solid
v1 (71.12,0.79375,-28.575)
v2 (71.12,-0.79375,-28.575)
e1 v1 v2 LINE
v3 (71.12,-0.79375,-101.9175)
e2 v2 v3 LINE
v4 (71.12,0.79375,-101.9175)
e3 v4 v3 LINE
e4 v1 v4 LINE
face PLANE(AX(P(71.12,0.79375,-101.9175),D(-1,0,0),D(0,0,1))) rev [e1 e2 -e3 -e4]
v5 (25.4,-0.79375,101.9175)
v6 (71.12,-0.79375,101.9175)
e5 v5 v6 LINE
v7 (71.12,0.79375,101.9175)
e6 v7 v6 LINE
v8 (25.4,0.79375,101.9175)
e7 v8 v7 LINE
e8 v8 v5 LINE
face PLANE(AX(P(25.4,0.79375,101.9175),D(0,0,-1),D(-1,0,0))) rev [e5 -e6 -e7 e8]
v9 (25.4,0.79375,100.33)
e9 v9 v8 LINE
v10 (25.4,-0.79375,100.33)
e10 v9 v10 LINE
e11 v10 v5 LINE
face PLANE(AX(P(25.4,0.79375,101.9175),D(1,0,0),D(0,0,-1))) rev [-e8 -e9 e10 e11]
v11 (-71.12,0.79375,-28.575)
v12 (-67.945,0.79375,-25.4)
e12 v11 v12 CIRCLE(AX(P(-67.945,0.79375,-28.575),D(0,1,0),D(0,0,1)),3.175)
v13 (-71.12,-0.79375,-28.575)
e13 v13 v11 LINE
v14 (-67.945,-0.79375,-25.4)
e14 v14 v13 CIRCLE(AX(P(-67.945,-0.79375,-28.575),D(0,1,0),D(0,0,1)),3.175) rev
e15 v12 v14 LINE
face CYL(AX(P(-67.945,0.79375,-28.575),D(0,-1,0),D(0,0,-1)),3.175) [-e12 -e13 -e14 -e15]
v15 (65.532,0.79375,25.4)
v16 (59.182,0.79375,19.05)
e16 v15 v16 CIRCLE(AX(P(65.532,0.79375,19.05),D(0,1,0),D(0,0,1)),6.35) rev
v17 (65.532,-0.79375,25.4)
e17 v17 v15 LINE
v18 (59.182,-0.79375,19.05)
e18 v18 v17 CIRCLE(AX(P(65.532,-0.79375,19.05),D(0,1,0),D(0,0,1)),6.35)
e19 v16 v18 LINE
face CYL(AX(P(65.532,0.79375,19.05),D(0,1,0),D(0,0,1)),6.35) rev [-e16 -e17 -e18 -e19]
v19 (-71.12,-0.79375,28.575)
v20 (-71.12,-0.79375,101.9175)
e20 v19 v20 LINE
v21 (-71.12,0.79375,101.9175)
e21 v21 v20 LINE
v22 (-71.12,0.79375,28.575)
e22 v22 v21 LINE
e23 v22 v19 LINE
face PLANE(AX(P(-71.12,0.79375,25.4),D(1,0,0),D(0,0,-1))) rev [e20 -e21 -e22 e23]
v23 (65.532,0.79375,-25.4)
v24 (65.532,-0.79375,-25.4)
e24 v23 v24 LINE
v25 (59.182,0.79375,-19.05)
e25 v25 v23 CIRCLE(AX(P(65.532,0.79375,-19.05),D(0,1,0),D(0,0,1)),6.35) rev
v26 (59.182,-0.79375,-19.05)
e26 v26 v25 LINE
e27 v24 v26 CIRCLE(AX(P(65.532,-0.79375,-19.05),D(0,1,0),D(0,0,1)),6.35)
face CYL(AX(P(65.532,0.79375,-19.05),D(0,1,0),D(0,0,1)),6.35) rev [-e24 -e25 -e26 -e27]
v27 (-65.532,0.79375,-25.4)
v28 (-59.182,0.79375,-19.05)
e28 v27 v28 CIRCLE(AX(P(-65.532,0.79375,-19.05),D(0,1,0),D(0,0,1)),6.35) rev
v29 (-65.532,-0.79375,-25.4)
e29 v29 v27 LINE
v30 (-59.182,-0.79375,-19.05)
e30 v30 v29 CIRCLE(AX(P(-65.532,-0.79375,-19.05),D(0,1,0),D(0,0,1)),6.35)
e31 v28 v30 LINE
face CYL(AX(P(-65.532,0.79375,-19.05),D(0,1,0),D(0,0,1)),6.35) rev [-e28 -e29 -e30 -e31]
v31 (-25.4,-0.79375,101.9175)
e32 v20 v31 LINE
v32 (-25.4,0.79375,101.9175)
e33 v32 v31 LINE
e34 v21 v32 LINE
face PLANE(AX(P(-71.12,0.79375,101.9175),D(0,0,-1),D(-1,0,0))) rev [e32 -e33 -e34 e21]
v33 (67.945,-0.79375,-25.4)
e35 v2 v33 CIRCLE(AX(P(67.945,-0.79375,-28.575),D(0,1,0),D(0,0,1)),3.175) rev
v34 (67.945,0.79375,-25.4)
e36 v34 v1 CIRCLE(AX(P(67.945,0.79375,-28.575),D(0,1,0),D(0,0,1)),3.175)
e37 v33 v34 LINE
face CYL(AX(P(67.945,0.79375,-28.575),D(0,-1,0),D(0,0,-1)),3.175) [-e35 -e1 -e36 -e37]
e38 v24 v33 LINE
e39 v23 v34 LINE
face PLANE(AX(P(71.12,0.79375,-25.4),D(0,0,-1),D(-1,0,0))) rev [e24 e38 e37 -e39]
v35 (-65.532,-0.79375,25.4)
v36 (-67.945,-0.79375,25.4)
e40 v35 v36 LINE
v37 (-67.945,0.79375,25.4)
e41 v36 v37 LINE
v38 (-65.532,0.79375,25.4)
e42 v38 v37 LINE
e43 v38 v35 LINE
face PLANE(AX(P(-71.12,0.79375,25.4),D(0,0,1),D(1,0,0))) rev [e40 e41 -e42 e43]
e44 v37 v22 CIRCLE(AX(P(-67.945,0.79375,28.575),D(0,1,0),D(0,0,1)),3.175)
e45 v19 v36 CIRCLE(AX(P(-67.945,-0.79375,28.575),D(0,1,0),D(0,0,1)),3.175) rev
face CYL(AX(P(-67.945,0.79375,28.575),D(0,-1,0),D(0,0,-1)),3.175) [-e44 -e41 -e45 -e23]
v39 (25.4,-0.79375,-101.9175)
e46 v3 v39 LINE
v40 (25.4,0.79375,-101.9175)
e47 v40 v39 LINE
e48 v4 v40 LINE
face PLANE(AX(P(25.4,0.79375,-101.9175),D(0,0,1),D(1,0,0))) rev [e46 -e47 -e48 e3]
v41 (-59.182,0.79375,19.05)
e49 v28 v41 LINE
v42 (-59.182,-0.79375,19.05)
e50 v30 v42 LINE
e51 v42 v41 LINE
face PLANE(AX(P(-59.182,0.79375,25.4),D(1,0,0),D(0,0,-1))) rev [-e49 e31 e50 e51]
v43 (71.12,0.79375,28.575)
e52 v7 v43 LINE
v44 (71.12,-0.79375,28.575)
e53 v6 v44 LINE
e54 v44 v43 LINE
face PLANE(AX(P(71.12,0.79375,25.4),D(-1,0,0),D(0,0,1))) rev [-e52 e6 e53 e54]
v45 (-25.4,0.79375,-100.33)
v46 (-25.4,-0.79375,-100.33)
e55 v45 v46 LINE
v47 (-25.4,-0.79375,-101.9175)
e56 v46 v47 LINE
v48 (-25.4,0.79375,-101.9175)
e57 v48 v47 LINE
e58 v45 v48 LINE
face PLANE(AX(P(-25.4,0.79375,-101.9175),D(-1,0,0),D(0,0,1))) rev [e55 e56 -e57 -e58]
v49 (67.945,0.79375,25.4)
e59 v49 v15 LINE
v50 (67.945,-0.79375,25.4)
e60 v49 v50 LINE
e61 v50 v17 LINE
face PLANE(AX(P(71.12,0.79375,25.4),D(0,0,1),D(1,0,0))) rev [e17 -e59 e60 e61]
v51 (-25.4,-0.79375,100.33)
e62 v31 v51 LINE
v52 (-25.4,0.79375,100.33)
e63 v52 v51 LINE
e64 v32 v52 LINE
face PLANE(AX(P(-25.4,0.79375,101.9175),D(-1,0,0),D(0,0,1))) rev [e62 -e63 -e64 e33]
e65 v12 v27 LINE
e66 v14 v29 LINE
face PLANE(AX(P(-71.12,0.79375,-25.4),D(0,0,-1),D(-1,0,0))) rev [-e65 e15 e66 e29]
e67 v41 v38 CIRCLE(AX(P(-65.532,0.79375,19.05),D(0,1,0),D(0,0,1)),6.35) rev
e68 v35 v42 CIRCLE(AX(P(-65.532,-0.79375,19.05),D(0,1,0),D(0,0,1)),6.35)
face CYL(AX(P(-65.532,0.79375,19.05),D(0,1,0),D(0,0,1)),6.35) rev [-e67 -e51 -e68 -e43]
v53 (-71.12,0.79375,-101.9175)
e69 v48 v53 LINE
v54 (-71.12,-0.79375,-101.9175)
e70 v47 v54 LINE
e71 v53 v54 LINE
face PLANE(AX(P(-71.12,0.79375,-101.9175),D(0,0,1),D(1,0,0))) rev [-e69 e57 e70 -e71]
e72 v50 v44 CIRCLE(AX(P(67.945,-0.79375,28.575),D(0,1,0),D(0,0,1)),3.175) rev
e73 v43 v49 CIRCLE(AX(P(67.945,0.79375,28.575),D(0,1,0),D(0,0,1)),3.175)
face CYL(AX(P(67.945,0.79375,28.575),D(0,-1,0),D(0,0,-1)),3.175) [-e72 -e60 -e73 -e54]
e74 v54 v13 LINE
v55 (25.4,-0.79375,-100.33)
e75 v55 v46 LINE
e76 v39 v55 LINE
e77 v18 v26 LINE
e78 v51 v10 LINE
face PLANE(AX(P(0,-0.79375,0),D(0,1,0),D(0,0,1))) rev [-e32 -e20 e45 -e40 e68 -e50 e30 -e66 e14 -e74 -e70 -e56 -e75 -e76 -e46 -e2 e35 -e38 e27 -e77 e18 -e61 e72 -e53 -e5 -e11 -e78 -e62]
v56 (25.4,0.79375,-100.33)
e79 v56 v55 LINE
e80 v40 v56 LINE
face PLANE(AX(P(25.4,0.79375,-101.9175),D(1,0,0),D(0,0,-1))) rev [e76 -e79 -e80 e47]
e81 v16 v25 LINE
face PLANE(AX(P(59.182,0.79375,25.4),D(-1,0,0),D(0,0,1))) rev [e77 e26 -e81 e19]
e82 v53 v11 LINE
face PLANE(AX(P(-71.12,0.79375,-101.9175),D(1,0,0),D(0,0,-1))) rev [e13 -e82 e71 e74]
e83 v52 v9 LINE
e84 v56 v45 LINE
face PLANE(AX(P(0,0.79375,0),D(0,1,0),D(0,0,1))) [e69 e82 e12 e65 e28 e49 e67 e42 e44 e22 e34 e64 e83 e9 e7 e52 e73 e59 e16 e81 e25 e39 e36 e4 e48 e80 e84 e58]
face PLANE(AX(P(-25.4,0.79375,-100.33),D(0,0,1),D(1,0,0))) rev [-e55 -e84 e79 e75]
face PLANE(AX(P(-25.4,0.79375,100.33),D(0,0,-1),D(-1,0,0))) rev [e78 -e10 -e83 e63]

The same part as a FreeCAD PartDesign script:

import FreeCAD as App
import Part
import Sketcher
Q = App.Units.Quantity


def edges_at(feature, points):
    """Names of the edges that pass closest to the given points."""
    edges = feature.Shape.Edges
    near = lambda p: min(range(len(edges)), key=lambda i: edges[i].distToShape(Part.Vertex(*p))[0])
    return sorted({f"Edge{near(p) + 1}" for p in points})

doc = App.newDocument("Part")
body = doc.addObject("PartDesign::Body", "Body")

sketch1 = doc.addObject("Sketcher::SketchObject", "Sketch")
body.addObject(sketch1)
sketch1.AttachmentSupport = (doc.XZ_Plane, [""])
sketch1.MapMode = "FlatFace"
sketch1.addGeometry(Part.LineSegment(App.Vector(-25.4, -101.9175, 0), App.Vector(-71.12, -101.9175, 0)), False)
sketch1.addGeometry(Part.LineSegment(App.Vector(-71.12, -101.9175, 0), App.Vector(-71.12, -25.4, 0)), False)
sketch1.addGeometry(Part.LineSegment(App.Vector(-71.12, -25.4, 0), App.Vector(-59.182, -25.4, 0)), False)
sketch1.addGeometry(Part.LineSegment(App.Vector(-59.182, -25.4, 0), App.Vector(-59.182, 25.4, 0)), False)
sketch1.addGeometry(Part.LineSegment(App.Vector(-59.182, 25.4, 0), App.Vector(-71.12, 25.4, 0)), False)
sketch1.addGeometry(Part.LineSegment(App.Vector(-71.12, 25.4, 0), App.Vector(-71.12, 101.9175, 0)), False)
sketch1.addGeometry(Part.LineSegment(App.Vector(-71.12, 101.9175, 0), App.Vector(-25.4, 101.9175, 0)), False)
sketch1.addGeometry(Part.LineSegment(App.Vector(-25.4, 101.9175, 0), App.Vector(-25.4, 100.33, 0)), False)
sketch1.addGeometry(Part.LineSegment(App.Vector(-25.4, 100.33, 0), App.Vector(25.4, 100.33, 0)), False)
sketch1.addGeometry(Part.LineSegment(App.Vector(25.4, 100.33, 0), App.Vector(25.4, 101.9175, 0)), False)
sketch1.addGeometry(Part.LineSegment(App.Vector(25.4, 101.9175, 0), App.Vector(71.12, 101.9175, 0)), False)
sketch1.addGeometry(Part.LineSegment(App.Vector(71.12, 101.9175, 0), App.Vector(71.12, 25.4, 0)), False)
sketch1.addGeometry(Part.LineSegment(App.Vector(71.12, 25.4, 0), App.Vector(59.182, 25.4, 0)), False)
sketch1.addGeometry(Part.LineSegment(App.Vector(59.182, 25.4, 0), App.Vector(59.182, -25.4, 0)), False)
sketch1.addGeometry(Part.LineSegment(App.Vector(59.182, -25.4, 0), App.Vector(71.12, -25.4, 0)), False)
sketch1.addGeometry(Part.LineSegment(App.Vector(71.12, -25.4, 0), App.Vector(71.12, -101.9175, 0)), False)
sketch1.addGeometry(Part.LineSegment(App.Vector(71.12, -101.9175, 0), App.Vector(25.4, -101.9175, 0)), False)
sketch1.addGeometry(Part.LineSegment(App.Vector(25.4, -101.9175, 0), App.Vector(25.4, -100.33, 0)), False)
sketch1.addGeometry(Part.LineSegment(App.Vector(25.4, -100.33, 0), App.Vector(-25.4, -100.33, 0)), False)
sketch1.addGeometry(Part.LineSegment(App.Vector(-25.4, -100.33, 0), App.Vector(-25.4, -101.9175, 0)), False)
sketch1.addConstraint(Sketcher.Constraint("Coincident", 0, 2, 1, 1))
sketch1.addConstraint(Sketcher.Constraint("Coincident", 1, 2, 2, 1))
sketch1.addConstraint(Sketcher.Constraint("Coincident", 2, 2, 3, 1))
sketch1.addConstraint(Sketcher.Constraint("Coincident", 3, 2, 4, 1))
sketch1.addConstraint(Sketcher.Constraint("Coincident", 4, 2, 5, 1))
sketch1.addConstraint(Sketcher.Constraint("Coincident", 5, 2, 6, 1))
sketch1.addConstraint(Sketcher.Constraint("Coincident", 6, 2, 7, 1))
sketch1.addConstraint(Sketcher.Constraint("Coincident", 7, 2, 8, 1))
sketch1.addConstraint(Sketcher.Constraint("Coincident", 8, 2, 9, 1))
sketch1.addConstraint(Sketcher.Constraint("Coincident", 9, 2, 10, 1))
sketch1.addConstraint(Sketcher.Constraint("Coincident", 10, 2, 11, 1))
sketch1.addConstraint(Sketcher.Constraint("Coincident", 11, 2, 12, 1))
sketch1.addConstraint(Sketcher.Constraint("Coincident", 12, 2, 13, 1))
sketch1.addConstraint(Sketcher.Constraint("Coincident", 13, 2, 14, 1))
sketch1.addConstraint(Sketcher.Constraint("Coincident", 14, 2, 15, 1))
sketch1.addConstraint(Sketcher.Constraint("Coincident", 15, 2, 16, 1))
sketch1.addConstraint(Sketcher.Constraint("Coincident", 16, 2, 17, 1))
sketch1.addConstraint(Sketcher.Constraint("Coincident", 17, 2, 18, 1))
sketch1.addConstraint(Sketcher.Constraint("Coincident", 18, 2, 19, 1))
sketch1.addConstraint(Sketcher.Constraint("Coincident", 19, 2, 0, 1))
sketch1.addConstraint(Sketcher.Constraint("Horizontal", 0))
sketch1.addConstraint(Sketcher.Constraint("Vertical", 1))
sketch1.addConstraint(Sketcher.Constraint("Horizontal", 2))
sketch1.addConstraint(Sketcher.Constraint("Vertical", 3))
sketch1.addConstraint(Sketcher.Constraint("Horizontal", 4))
sketch1.addConstraint(Sketcher.Constraint("Vertical", 5))
sketch1.addConstraint(Sketcher.Constraint("Horizontal", 6))
sketch1.addConstraint(Sketcher.Constraint("Vertical", 7))
sketch1.addConstraint(Sketcher.Constraint("Horizontal", 8))
sketch1.addConstraint(Sketcher.Constraint("Vertical", 9))
sketch1.addConstraint(Sketcher.Constraint("Horizontal", 10))
sketch1.addConstraint(Sketcher.Constraint("Vertical", 11))
sketch1.addConstraint(Sketcher.Constraint("Horizontal", 12))
sketch1.addConstraint(Sketcher.Constraint("Vertical", 13))
sketch1.addConstraint(Sketcher.Constraint("Horizontal", 14))
sketch1.addConstraint(Sketcher.Constraint("Vertical", 15))
sketch1.addConstraint(Sketcher.Constraint("Horizontal", 16))
sketch1.addConstraint(Sketcher.Constraint("Vertical", 17))
sketch1.addConstraint(Sketcher.Constraint("Horizontal", 18))
sketch1.addConstraint(Sketcher.Constraint("Vertical", 19))
sketch1.addConstraint(Sketcher.Constraint("Symmetric", 0, 2, 10, 2, -1, 1))
sketch1.addConstraint(Sketcher.Constraint("Symmetric", 2, 2, 12, 2, -1, 1))
sketch1.addConstraint(Sketcher.Constraint("Symmetric", 4, 2, 14, 2, -1, 1))
sketch1.addConstraint(Sketcher.Constraint("Symmetric", 6, 2, 16, 2, -1, 1))
sketch1.addConstraint(Sketcher.Constraint("Symmetric", 8, 2, 18, 2, -1, 1))
sketch1.addConstraint(Sketcher.Constraint("Symmetric", 6, 2, 9, 2, -2))
sketch1.addConstraint(Sketcher.Constraint("Symmetric", 4, 2, 11, 2, -2))
sketch1.addConstraint(Sketcher.Constraint("Equal", 18, 3))
sketch1.addConstraint(Sketcher.Constraint("DistanceX", 8, 1, 8, 2, Q("2 in")))
sketch1.addConstraint(Sketcher.Constraint("DistanceX", 0, 2, 0, 1, Q("1.8 in")))
sketch1.addConstraint(Sketcher.Constraint("DistanceX", 2, 1, 2, 2, Q("0.47 in")))
sketch1.addConstraint(Sketcher.Constraint("DistanceY", 7, 2, 7, 1, Q("0.0625 in")))
sketch1.addConstraint(Sketcher.Constraint("DistanceY", -1, 1, 7, 2, Q("3.95 in")))
pad1 = doc.addObject("PartDesign::Pad", "Pad")
body.addObject(pad1)
pad1.Profile = sketch1
pad1.Length = Q("0.0625 in")
pad1.Midplane = True
doc.recompute()

fillet = doc.addObject("PartDesign::Fillet", "Fillet")
body.addObject(fillet)
fillet.Base = (pad1, edges_at(pad1, [
    (59.182, 0, -25.4),
    (59.182, 0, 25.4),
    (-59.182, 0, 25.4),
    (-59.182, 0, -25.4),
]))
fillet.Radius = Q("0.25 in")
doc.recompute()

fillet2 = doc.addObject("PartDesign::Fillet", "Fillet001")
body.addObject(fillet2)
fillet2.Base = (fillet, edges_at(fillet, [
    (71.12, 0, -25.4),
    (71.12, 0, 25.4),
    (-71.12, 0, 25.4),
    (-71.12, 0, -25.4),
]))
fillet2.Radius = Q("0.125 in")

doc.recompute()
